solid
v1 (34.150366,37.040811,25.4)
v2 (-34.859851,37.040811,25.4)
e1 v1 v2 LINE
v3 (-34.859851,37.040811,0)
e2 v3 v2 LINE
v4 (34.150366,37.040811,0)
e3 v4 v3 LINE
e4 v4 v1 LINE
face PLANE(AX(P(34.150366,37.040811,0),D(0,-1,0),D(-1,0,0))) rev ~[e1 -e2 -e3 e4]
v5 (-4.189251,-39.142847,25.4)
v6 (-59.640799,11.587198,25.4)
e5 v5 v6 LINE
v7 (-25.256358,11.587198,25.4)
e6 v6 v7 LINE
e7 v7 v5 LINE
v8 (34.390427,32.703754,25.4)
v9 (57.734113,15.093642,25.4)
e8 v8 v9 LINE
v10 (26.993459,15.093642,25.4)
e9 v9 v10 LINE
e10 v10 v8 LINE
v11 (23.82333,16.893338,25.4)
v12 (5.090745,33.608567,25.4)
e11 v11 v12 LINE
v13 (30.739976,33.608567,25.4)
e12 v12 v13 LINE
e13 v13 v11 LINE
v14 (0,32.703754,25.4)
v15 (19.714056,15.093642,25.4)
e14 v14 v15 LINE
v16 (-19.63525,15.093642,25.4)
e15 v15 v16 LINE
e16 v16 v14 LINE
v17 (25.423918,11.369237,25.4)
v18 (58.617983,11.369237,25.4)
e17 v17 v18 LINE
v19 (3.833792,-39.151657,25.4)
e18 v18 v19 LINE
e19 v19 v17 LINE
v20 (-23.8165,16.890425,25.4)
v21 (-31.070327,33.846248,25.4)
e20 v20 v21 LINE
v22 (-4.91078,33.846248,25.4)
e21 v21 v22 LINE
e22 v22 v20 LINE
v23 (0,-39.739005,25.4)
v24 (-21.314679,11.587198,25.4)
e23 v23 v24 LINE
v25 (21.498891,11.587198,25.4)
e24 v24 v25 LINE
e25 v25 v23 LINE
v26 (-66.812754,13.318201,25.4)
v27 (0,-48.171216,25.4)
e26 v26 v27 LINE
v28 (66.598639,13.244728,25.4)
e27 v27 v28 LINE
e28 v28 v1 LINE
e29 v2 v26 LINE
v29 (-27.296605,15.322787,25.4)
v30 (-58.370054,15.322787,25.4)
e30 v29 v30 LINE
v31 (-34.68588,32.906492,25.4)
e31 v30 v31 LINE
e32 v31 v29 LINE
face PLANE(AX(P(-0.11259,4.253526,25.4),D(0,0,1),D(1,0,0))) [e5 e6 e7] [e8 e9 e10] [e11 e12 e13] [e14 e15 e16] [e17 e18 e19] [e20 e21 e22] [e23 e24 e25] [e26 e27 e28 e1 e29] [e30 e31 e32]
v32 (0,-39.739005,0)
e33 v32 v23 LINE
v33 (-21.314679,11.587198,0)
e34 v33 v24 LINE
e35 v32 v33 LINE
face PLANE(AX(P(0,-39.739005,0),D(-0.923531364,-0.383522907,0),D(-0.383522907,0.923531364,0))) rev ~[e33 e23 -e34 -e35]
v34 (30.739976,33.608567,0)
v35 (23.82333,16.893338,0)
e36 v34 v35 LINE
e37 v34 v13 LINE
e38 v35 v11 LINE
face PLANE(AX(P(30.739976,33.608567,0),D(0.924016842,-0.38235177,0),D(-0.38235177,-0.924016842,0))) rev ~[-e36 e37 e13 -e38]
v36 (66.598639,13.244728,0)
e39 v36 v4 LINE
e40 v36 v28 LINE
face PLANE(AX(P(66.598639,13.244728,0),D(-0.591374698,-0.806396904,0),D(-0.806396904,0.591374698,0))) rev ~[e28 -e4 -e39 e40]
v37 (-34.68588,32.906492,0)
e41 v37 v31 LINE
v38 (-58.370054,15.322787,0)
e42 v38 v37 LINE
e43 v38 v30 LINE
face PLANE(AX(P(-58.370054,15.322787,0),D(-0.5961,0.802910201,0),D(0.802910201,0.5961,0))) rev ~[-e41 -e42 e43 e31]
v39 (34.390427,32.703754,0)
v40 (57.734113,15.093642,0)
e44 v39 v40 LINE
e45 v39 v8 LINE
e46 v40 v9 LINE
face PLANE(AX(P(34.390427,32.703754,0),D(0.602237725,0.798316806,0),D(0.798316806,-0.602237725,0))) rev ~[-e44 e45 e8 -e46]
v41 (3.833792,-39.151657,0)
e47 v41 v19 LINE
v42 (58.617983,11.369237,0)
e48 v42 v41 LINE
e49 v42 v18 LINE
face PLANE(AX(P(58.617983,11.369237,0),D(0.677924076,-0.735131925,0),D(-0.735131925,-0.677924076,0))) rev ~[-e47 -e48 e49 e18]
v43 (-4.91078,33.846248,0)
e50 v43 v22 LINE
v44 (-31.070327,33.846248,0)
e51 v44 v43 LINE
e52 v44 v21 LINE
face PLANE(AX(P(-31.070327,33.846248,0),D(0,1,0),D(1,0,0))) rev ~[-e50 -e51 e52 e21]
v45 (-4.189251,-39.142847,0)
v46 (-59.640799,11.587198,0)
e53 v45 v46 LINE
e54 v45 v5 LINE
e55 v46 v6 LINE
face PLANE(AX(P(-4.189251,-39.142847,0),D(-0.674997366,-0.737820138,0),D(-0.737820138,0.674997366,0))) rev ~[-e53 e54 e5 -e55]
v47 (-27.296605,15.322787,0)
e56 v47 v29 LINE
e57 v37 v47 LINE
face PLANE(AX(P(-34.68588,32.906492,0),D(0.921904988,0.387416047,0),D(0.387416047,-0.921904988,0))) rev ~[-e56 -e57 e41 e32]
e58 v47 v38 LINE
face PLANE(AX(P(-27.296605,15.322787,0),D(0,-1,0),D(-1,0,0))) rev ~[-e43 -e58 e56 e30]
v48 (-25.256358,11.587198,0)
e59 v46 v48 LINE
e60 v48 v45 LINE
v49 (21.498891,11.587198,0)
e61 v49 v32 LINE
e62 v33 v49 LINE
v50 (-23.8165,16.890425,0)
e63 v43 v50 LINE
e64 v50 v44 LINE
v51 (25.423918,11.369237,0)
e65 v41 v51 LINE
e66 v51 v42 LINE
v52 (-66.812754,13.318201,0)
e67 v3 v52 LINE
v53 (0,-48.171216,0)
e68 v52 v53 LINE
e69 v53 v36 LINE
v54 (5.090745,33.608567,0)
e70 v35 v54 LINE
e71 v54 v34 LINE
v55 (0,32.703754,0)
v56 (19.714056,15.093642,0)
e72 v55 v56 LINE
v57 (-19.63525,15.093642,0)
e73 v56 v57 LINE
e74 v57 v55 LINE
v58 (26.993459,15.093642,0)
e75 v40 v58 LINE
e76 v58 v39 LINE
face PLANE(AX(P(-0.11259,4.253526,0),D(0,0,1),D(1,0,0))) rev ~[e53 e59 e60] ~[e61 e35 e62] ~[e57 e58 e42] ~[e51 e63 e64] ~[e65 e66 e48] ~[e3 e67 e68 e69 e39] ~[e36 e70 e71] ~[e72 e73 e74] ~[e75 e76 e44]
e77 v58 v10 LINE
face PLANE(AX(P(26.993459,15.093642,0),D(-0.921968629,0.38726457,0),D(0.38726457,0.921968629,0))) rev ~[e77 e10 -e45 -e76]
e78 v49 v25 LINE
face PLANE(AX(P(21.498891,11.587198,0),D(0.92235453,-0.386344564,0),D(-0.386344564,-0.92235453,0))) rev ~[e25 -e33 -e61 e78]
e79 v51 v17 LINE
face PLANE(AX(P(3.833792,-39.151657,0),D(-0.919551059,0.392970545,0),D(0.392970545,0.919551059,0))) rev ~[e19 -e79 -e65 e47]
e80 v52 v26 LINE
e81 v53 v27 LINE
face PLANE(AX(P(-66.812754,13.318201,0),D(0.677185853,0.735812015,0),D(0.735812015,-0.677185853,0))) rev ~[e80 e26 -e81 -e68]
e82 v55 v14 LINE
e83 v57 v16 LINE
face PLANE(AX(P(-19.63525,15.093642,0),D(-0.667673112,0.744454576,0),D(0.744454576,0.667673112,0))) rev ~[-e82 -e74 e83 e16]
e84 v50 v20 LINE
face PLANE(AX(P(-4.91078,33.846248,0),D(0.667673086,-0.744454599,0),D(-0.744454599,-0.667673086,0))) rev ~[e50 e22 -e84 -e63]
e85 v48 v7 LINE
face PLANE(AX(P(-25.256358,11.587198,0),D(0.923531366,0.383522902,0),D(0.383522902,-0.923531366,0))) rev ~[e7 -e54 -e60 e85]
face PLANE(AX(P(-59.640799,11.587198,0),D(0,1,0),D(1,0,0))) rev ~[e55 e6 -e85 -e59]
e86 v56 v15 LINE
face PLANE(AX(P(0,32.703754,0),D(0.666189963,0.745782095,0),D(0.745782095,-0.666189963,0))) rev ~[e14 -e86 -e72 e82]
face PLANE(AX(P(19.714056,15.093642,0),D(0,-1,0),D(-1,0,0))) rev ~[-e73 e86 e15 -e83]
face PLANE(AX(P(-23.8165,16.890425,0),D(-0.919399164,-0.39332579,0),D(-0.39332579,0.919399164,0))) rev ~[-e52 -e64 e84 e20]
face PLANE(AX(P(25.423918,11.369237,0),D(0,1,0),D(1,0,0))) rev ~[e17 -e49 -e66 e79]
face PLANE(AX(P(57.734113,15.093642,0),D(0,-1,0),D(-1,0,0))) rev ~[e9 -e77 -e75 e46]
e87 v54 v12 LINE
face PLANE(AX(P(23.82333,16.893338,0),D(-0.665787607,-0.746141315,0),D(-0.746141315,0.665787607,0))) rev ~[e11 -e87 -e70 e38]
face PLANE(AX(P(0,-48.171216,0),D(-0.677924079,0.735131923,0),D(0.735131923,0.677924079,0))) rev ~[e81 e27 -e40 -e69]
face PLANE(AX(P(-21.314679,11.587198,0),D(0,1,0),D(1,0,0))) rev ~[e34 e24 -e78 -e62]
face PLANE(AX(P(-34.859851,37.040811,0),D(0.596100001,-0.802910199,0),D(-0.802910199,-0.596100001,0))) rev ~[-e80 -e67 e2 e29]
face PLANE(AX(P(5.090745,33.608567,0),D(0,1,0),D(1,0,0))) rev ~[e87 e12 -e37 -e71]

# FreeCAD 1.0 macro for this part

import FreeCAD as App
import Part
import Sketcher
from FreeCAD import Vector
Q = App.Units.Quantity


def add_polygon(sketch, points):
    """Adds a closed chain of lines whose ends are joined by coincident constraints."""
    first, n = sketch.GeometryCount, len(points)
    for a, b in zip(points, points[1:] + points[:1]):
        sketch.addGeometry(Part.LineSegment(App.Vector(*a, 0), App.Vector(*b, 0)), False)
    for i in range(n):
        sketch.addConstraint(Sketcher.Constraint("Coincident", first + i, 2, first + (i + 1) % n, 1))

doc = App.newDocument("Part")
body = doc.addObject("PartDesign::Body", "Body")

# Sketch on XY plane
sketch1 = doc.addObject("Sketcher::SketchObject", "Sketch")
body.addObject(sketch1)
sketch1.AttachmentSupport = (doc.XY_Plane, [""])
sketch1.MapMode = "FlatFace"
add_polygon(sketch1, [(-35, 37), (-67, 13), (0, -48), (67, 13), (34, 37)])  # lines 0-4
add_polygon(sketch1, [(-25, 12), (-4, -39), (-60, 12)])  # lines 5-7
add_polygon(sketch1, [(21, 12), (0, -40), (-21, 12)])  # lines 8-10
add_polygon(sketch1, [(59, 11), (4, -39), (25, 11)])  # lines 11-13
add_polygon(sketch1, [(-35, 33), (-27, 15), (-58, 15)])  # lines 14-16
add_polygon(sketch1, [(-5, 34), (-24, 17), (-31, 34)])  # lines 17-19
add_polygon(sketch1, [(0, 33), (20, 15), (-20, 15)])  # lines 20-22
add_polygon(sketch1, [(31, 34), (24, 17), (5, 34)])  # lines 23-25
add_polygon(sketch1, [(34, 33), (58, 15), (27, 15)])  # lines 26-28
sketch1.addConstraint(Sketcher.Constraint("Horizontal", 4))
sketch1.addConstraint(Sketcher.Constraint("Horizontal", 7))
sketch1.addConstraint(Sketcher.Constraint("Horizontal", 10))
sketch1.addConstraint(Sketcher.Constraint("Horizontal", 13))
sketch1.addConstraint(Sketcher.Constraint("Horizontal", 15))
sketch1.addConstraint(Sketcher.Constraint("Horizontal", 19))
sketch1.addConstraint(Sketcher.Constraint("Horizontal", 21))
sketch1.addConstraint(Sketcher.Constraint("Horizontal", 25))
sketch1.addConstraint(Sketcher.Constraint("Horizontal", 27))
sketch1.addConstraint(Sketcher.Constraint("PointOnObject", 1, 2, -2))
sketch1.addConstraint(Sketcher.Constraint("PointOnObject", 8, 2, -2))
sketch1.addConstraint(Sketcher.Constraint("PointOnObject", 22, 2, -2))
sketch1.addConstraint(Sketcher.Constraint("Parallel", 5, 9))
sketch1.addConstraint(Sketcher.Constraint("Parallel", 2, 11))
sketch1.addConstraint(Sketcher.Constraint("Parallel", 0, 16))
sketch1.addConstraint(Sketcher.Constraint("Parallel", 17, 22))
sketch1.addConstraint(Sketcher.Constraint("Horizontal", 7, 2, 9, 2))
sketch1.addConstraint(Sketcher.Constraint("Horizontal", 21, 2, 26, 2))
sketch1.addConstraint(Sketcher.Constraint("Horizontal", 22, 2, 28, 2))
sketch1.addConstraint(Sketcher.Constraint("DistanceX", 18, 2, 21, 2, Q("0.4501999 in")))
sketch1.addConstraint(Sketcher.Constraint("DistanceX", 7, 1, 7, 2, 34.384441))
sketch1.addConstraint(Sketcher.Constraint("DistanceX", 10, 1, 10, 2, 42.81357))
sketch1.addConstraint(Sketcher.Constraint("DistanceX", 15, 2, 15, 1, 31.073449))
sketch1.addConstraint(Sketcher.Constraint("DistanceX", 25, 1, 25, 2, 25.649231))
sketch1.addConstraint(Sketcher.Constraint("DistanceY", -1, 1, 0, 2, 13.318201))
sketch1.addConstraint(Sketcher.Constraint("DistanceX", 6, 2, -1, 1, 59.640799))
sketch1.addConstraint(Sketcher.Constraint("DistanceY", -1, 1, 6, 2, 11.587198))
sketch1.addConstraint(Sketcher.Constraint("DistanceX", 17, 2, -1, 1, 23.8165))
sketch1.addConstraint(Sketcher.Constraint("DistanceX", 4, 2, 5, 2, 30.6706))
sketch1.addConstraint(Sketcher.Constraint("DistanceX", 11, 2, 10, 2, 17.665099))
sketch1.addConstraint(Sketcher.Constraint("DistanceX", 0, 2, 15, 2, 8.4427))
sketch1.addConstraint(Sketcher.Constraint("DistanceX", 16, 2, 9, 2, 13.371201))
sketch1.addConstraint(Sketcher.Constraint("DistanceX", 9, 2, 19, 2, 16.403899))
sketch1.addConstraint(Sketcher.Constraint("DistanceY", 12, 2, 23, 2, 5.524101))
sketch1.addConstraint(Sketcher.Constraint("Distance", 0, 39.79636))
sketch1.addConstraint(Sketcher.Constraint("Distance", 1, 90.80139))
sketch1.addConstraint(Sketcher.Constraint("Distance", 3, 40.238588))
sketch1.addConstraint(Sketcher.Constraint("Distance", 11, 74.522938))
sketch1.addConstraint(Sketcher.Constraint("Distance", 14, 19.073229))
sketch1.addConstraint(Sketcher.Constraint("Distance", 16, 29.497911))
sketch1.addConstraint(Sketcher.Constraint("Distance", 20, 26.43407))
sketch1.addConstraint(Sketcher.Constraint("Distance", 22, 26.37535))
sketch1.addConstraint(Sketcher.Constraint("Distance", 26, 29.241131))
sketch1.addConstraint(Sketcher.Constraint("DistanceX", 4, 2, 4, 1, 69.010217))
sketch1.addConstraint(Sketcher.Constraint("DistanceX", 13, 1, 13, 2, 33.194065))
sketch1.addConstraint(Sketcher.Constraint("DistanceX", 19, 1, 19, 2, 26.159547))
sketch1.addConstraint(Sketcher.Constraint("DistanceX", 21, 2, 21, 1, 39.349306))
sketch1.addConstraint(Sketcher.Constraint("DistanceX", 27, 2, 27, 1, 30.740654))
sketch1.addConstraint(Sketcher.Constraint("DistanceX", -1, 1, 2, 2, 66.598639))
sketch1.addConstraint(Sketcher.Constraint("DistanceY", -1, 1, 18, 2, 33.846248))
sketch1.addConstraint(Sketcher.Constraint("DistanceY", -1, 1, 20, 2, 15.093642))
sketch1.addConstraint(Sketcher.Constraint("DistanceX", -1, 1, 23, 2, 23.82333))
sketch1.addConstraint(Sketcher.Constraint("DistanceY", -1, 1, 23, 2, 16.893338))
sketch1.addConstraint(Sketcher.Constraint("DistanceX", -1, 1, 27, 2, 26.993459))
sketch1.addConstraint(Sketcher.Constraint("DistanceY", 1, 2, 5, 2, 9.028369))
sketch1.addConstraint(Sketcher.Constraint("DistanceY", 7, 2, 14, 2, 3.735589))
sketch1.addConstraint(Sketcher.Constraint("DistanceY", 24, 2, 19, 2, 0.237681))
sketch1.addConstraint(Sketcher.Constraint("DistanceX", 24, 2, 20, 2, 14.623311))
pad1 = doc.addObject("PartDesign::Pad", "Pad")
body.addObject(pad1)
pad1.Profile = sketch1
pad1.Length = Q("1 in")

doc.recompute()
